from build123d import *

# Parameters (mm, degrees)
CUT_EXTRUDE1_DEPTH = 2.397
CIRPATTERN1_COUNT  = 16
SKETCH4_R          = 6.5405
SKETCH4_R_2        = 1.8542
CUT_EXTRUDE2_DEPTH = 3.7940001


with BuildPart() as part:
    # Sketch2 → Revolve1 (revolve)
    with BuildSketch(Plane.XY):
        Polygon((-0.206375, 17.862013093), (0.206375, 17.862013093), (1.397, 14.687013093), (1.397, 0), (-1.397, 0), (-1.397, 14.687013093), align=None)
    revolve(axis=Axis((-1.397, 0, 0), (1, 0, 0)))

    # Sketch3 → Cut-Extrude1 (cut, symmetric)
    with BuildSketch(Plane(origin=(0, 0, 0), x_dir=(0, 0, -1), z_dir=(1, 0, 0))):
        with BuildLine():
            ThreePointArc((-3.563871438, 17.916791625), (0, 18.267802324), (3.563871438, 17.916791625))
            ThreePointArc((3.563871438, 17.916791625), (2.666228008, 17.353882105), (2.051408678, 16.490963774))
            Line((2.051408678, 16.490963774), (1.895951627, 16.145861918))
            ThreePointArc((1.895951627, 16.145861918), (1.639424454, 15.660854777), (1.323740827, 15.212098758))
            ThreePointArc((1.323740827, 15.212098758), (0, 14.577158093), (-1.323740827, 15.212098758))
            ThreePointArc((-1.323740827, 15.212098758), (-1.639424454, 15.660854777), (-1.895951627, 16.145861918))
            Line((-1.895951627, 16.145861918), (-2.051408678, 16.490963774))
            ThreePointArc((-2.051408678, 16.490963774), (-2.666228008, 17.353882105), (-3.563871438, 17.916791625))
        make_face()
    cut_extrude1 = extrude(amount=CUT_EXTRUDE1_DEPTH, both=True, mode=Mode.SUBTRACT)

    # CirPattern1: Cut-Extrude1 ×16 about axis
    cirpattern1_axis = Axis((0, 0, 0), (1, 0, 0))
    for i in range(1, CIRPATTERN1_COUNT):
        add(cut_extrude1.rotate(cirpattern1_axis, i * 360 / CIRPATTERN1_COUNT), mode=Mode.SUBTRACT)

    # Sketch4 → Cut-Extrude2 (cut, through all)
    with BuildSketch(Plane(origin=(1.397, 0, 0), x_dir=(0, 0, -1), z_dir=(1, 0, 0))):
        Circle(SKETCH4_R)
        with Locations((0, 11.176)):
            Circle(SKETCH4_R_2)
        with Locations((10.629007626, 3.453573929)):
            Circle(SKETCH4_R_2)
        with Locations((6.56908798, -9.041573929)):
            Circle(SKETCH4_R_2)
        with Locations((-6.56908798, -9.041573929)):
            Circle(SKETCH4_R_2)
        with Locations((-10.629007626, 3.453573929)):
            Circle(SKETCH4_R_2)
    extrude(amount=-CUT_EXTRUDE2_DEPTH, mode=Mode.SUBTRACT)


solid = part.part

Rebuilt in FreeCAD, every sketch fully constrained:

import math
import FreeCAD as App
import Part
import Sketcher
from FreeCAD import Vector
Q = App.Units.Quantity

doc = App.newDocument("Part")
params = doc.addObject("Spreadsheet::Sheet", "Params")
for row, (alias, value) in enumerate([
    ("sketch1_width", "0.11 in"),
    ("revolution_angle", "360 deg"),
    ("pocket1_length", "4.794 mm"),
    ("sketch3_diameter", "0.515 in"),
    ("sketch3_diameter2", "0.146 in"),
], start=1):
    params.set(f"A{row}", alias)
    params.set(f"B{row}", "=" + value)
    params.setAlias(f"B{row}", alias)

body = doc.addObject("PartDesign::Body", "Body")

# Sketch on XY plane
sketch1 = doc.addObject("Sketcher::SketchObject", "Sketch")
body.addObject(sketch1)
sketch1.AttachmentSupport = (doc.XY_Plane, [""])
sketch1.MapMode = "FlatFace"
sketch1.addGeometry([
    Part.LineSegment(Vector(0.21, 17.86, 0), Vector(-0.21, 17.86, 0)),  # 0
    Part.LineSegment(Vector(-0.21, 17.86, 0), Vector(-1.4, 14.69, 0)),  # 1
    Part.LineSegment(Vector(-1.4, 14.69, 0), Vector(-1.4, 0, 0)),  # 2
    Part.LineSegment(Vector(-1.4, 0, 0), Vector(1.4, 0, 0)),  # 3
    Part.LineSegment(Vector(1.4, 0, 0), Vector(1.4, 14.69, 0)),  # 4
    Part.LineSegment(Vector(1.4, 14.69, 0), Vector(0.21, 17.86, 0)),  # 5
], False)
sketch1.addConstraint([
    Sketcher.Constraint("Coincident", 0, 2, 1, 1),
    Sketcher.Constraint("Coincident", 1, 2, 2, 1),
    Sketcher.Constraint("Coincident", 2, 2, 3, 1),
    Sketcher.Constraint("Coincident", 3, 2, 4, 1),
    Sketcher.Constraint("Coincident", 4, 2, 5, 1),
    Sketcher.Constraint("Coincident", 5, 2, 0, 1),
    Sketcher.Constraint("Horizontal", 0),
    Sketcher.Constraint("Vertical", 2),
    Sketcher.Constraint("Horizontal", 3),
    Sketcher.Constraint("Vertical", 4),
    Sketcher.Constraint("Symmetric", 2, 2, 3, 2, -1, 1),
    Sketcher.Constraint("Horizontal", 1, 2, 4, 2),
    Sketcher.Constraint("Equal", 1, 5),
    Sketcher.Constraint("DistanceX", 3, 1, 3, 2, Q("0.11 in")),
    Sketcher.Constraint("DistanceX", 1, 2, 0, 2, Q("0.046875 in")),
    Sketcher.Constraint("DistanceY", 1, 2, 0, 2, Q("0.125 in")),
    Sketcher.Constraint("DistanceY", 2, 2, 2, 1, 14.687013),
])
sketch1.setExpression("Constraints[13]", "Params.sketch1_width")
revolution = doc.addObject("PartDesign::Revolution", "Revolution")
body.addObject(revolution)
revolution.Profile = sketch1
revolution.ReferenceAxis = (sketch1, ["H_Axis"])
revolution.setExpression("Angle", "Params.revolution_angle")

# Sketch on YZ plane
sketch2 = doc.addObject("Sketcher::SketchObject", "Sketch001")
body.addObject(sketch2)
sketch2.AttachmentSupport = (doc.YZ_Plane, [""])
sketch2.MapMode = "FlatFace"
sketch2.addGeometry([
    Part.ArcOfCircle(Part.Circle(Vector(0, 0, 0), Vector(0, 0, 1), 18.27), math.radians(-11), math.radians(11)),  # 0
    Part.ArcOfCircle(Part.Circle(Vector(15.37, 4.53, 0), Vector(0, 0, 1), 2.72), math.radians(-66), math.radians(-21)),  # 1
    Part.LineSegment(Vector(16.49, 2.05, 0), Vector(16.15, 1.9, 0)),  # 2
    Part.ArcOfCircle(Part.Circle(Vector(17.93, -2.06, 0), Vector(0, 0, 1), 4.34), math.radians(114.25), math.radians(128.75)),  # 3
    Part.ArcOfCircle(Part.Circle(Vector(16.27, 0, 0), Vector(0, 0, 1), 1.7), math.radians(129), math.radians(231)),  # 4
    Part.ArcOfCircle(Part.Circle(Vector(17.93, 2.06, 0), Vector(0, 0, 1), 4.34), math.radians(-128.75), math.radians(-114.25)),  # 5
    Part.LineSegment(Vector(16.15, -1.9, 0), Vector(16.49, -2.05, 0)),  # 6
    Part.ArcOfCircle(Part.Circle(Vector(15.37, -4.53, 0), Vector(0, 0, 1), 2.72), math.radians(21), math.radians(66)),  # 7
], False)
sketch2.addConstraint([
    Sketcher.Constraint("Coincident", 0, 2, 1, 2),
    Sketcher.Constraint("Tangent", 1, 1, 2, 1),
    Sketcher.Constraint("Tangent", 2, 2, 3, 1),
    Sketcher.Constraint("Tangent", 3, 2, 4, 1),
    Sketcher.Constraint("Tangent", 4, 2, 5, 1),
    Sketcher.Constraint("Tangent", 5, 2, 6, 1),
    Sketcher.Constraint("Tangent", 6, 2, 7, 2),
    Sketcher.Constraint("Coincident", 7, 1, 0, 1),
    Sketcher.Constraint("Coincident", 0, 3, -1, 1),
    Sketcher.Constraint("Equal", 3, 5),
    Sketcher.Constraint("Equal", 1, 7),
    Sketcher.Constraint("Symmetric", 3, 3, 5, 3, -1),
    Sketcher.Constraint("Symmetric", 1, 3, 7, 3, -1),
    Sketcher.Constraint("Angle", 2, Q("-155.75 deg")),
    Sketcher.Constraint("Radius", 1, 2.722822),
    Sketcher.Constraint("Radius", 0, 18.267802),
    Sketcher.Constraint("Radius", 3, 4.338955),
    Sketcher.Constraint("Radius", 4, 1.697355),
    Sketcher.Constraint("Distance", 2, 0.3785),
    Sketcher.Constraint("DistanceX", -1, 1, 3, 2, 15.212099),
    Sketcher.Constraint("DistanceY", 3, 2, 5, 3, 0.736402),
])
pocket1 = doc.addObject("PartDesign::Pocket", "Pocket")
body.addObject(pocket1)
pocket1.Profile = sketch2
pocket1.setExpression("Length", "Params.pocket1_length")
pocket1.Midplane = True
doc.recompute()

polarpattern = doc.addObject("PartDesign::PolarPattern", "PolarPattern")
body.addObject(polarpattern)
polarpattern.Originals = [pocket1]
polarpattern.Axis = (doc.X_Axis, [""])
polarpattern.Angle = 360
polarpattern.Occurrences = 16
body.Tip = polarpattern

# Sketch on YZ plane
sketch3 = doc.addObject("Sketcher::SketchObject", "Sketch002")
body.addObject(sketch3)
sketch3.AttachmentSupport = (doc.YZ_Plane, [""])
sketch3.MapMode = "FlatFace"
sketch3.AttachmentOffset = App.Placement(Vector(0, 0, 0.055 * 25.4), App.Rotation())
sketch3.addGeometry([
    Part.Circle(Vector(0, 0, 0), Vector(0, 0, 1), 6.5),  # 0
    Part.Circle(Vector(11.2, 0, 0), Vector(0, 0, 1), 1.9),  # 1
    Part.Circle(Vector(3.5, -10.6, 0), Vector(0, 0, 1), 1.9),  # 2
    Part.Circle(Vector(-9, -6.6, 0), Vector(0, 0, 1), 1.9),  # 3
    Part.Circle(Vector(-9, 6.6, 0), Vector(0, 0, 1), 1.9),  # 4
    Part.Circle(Vector(3.5, 10.6, 0), Vector(0, 0, 1), 1.9),  # 5
], False)
sketch3.addConstraint([
    Sketcher.Constraint("Coincident", 0, 3, -1, 1),
    Sketcher.Constraint("Equal", 1, 2),
    Sketcher.Constraint("Equal", 2, 3),
    Sketcher.Constraint("Equal", 3, 4),
    Sketcher.Constraint("Equal", 4, 5),
    Sketcher.Constraint("Symmetric", 3, 3, 4, 3, -1),
    Sketcher.Constraint("Symmetric", 2, 3, 5, 3, -1),
    Sketcher.Constraint("PointOnObject", 1, 3, -1),
    Sketcher.Constraint("Diameter", 0, Q("0.515 in")),
    Sketcher.Constraint("Diameter", 1, Q("0.146 in")),
    Sketcher.Constraint("DistanceX", -1, 1, 1, 3, Q("0.44 in")),
    Sketcher.Constraint("DistanceY", 2, 3, 3, 3, 4.05992),
    Sketcher.Constraint("DistanceX", -1, 1, 2, 3, 3.453574),
    Sketcher.Constraint("DistanceY", 2, 3, -1, 1, 10.629008),
    Sketcher.Constraint("DistanceX", 3, 3, -1, 1, 9.041574),
])
sketch3.setExpression("Constraints[8]", "Params.sketch3_diameter")
sketch3.setExpression("Constraints[9]", "Params.sketch3_diameter2")
pocket2 = doc.addObject("PartDesign::Pocket", "Pocket001")
body.addObject(pocket2)
pocket2.Profile = sketch3
pocket2.Type = "ThroughAll"

doc.recompute()
